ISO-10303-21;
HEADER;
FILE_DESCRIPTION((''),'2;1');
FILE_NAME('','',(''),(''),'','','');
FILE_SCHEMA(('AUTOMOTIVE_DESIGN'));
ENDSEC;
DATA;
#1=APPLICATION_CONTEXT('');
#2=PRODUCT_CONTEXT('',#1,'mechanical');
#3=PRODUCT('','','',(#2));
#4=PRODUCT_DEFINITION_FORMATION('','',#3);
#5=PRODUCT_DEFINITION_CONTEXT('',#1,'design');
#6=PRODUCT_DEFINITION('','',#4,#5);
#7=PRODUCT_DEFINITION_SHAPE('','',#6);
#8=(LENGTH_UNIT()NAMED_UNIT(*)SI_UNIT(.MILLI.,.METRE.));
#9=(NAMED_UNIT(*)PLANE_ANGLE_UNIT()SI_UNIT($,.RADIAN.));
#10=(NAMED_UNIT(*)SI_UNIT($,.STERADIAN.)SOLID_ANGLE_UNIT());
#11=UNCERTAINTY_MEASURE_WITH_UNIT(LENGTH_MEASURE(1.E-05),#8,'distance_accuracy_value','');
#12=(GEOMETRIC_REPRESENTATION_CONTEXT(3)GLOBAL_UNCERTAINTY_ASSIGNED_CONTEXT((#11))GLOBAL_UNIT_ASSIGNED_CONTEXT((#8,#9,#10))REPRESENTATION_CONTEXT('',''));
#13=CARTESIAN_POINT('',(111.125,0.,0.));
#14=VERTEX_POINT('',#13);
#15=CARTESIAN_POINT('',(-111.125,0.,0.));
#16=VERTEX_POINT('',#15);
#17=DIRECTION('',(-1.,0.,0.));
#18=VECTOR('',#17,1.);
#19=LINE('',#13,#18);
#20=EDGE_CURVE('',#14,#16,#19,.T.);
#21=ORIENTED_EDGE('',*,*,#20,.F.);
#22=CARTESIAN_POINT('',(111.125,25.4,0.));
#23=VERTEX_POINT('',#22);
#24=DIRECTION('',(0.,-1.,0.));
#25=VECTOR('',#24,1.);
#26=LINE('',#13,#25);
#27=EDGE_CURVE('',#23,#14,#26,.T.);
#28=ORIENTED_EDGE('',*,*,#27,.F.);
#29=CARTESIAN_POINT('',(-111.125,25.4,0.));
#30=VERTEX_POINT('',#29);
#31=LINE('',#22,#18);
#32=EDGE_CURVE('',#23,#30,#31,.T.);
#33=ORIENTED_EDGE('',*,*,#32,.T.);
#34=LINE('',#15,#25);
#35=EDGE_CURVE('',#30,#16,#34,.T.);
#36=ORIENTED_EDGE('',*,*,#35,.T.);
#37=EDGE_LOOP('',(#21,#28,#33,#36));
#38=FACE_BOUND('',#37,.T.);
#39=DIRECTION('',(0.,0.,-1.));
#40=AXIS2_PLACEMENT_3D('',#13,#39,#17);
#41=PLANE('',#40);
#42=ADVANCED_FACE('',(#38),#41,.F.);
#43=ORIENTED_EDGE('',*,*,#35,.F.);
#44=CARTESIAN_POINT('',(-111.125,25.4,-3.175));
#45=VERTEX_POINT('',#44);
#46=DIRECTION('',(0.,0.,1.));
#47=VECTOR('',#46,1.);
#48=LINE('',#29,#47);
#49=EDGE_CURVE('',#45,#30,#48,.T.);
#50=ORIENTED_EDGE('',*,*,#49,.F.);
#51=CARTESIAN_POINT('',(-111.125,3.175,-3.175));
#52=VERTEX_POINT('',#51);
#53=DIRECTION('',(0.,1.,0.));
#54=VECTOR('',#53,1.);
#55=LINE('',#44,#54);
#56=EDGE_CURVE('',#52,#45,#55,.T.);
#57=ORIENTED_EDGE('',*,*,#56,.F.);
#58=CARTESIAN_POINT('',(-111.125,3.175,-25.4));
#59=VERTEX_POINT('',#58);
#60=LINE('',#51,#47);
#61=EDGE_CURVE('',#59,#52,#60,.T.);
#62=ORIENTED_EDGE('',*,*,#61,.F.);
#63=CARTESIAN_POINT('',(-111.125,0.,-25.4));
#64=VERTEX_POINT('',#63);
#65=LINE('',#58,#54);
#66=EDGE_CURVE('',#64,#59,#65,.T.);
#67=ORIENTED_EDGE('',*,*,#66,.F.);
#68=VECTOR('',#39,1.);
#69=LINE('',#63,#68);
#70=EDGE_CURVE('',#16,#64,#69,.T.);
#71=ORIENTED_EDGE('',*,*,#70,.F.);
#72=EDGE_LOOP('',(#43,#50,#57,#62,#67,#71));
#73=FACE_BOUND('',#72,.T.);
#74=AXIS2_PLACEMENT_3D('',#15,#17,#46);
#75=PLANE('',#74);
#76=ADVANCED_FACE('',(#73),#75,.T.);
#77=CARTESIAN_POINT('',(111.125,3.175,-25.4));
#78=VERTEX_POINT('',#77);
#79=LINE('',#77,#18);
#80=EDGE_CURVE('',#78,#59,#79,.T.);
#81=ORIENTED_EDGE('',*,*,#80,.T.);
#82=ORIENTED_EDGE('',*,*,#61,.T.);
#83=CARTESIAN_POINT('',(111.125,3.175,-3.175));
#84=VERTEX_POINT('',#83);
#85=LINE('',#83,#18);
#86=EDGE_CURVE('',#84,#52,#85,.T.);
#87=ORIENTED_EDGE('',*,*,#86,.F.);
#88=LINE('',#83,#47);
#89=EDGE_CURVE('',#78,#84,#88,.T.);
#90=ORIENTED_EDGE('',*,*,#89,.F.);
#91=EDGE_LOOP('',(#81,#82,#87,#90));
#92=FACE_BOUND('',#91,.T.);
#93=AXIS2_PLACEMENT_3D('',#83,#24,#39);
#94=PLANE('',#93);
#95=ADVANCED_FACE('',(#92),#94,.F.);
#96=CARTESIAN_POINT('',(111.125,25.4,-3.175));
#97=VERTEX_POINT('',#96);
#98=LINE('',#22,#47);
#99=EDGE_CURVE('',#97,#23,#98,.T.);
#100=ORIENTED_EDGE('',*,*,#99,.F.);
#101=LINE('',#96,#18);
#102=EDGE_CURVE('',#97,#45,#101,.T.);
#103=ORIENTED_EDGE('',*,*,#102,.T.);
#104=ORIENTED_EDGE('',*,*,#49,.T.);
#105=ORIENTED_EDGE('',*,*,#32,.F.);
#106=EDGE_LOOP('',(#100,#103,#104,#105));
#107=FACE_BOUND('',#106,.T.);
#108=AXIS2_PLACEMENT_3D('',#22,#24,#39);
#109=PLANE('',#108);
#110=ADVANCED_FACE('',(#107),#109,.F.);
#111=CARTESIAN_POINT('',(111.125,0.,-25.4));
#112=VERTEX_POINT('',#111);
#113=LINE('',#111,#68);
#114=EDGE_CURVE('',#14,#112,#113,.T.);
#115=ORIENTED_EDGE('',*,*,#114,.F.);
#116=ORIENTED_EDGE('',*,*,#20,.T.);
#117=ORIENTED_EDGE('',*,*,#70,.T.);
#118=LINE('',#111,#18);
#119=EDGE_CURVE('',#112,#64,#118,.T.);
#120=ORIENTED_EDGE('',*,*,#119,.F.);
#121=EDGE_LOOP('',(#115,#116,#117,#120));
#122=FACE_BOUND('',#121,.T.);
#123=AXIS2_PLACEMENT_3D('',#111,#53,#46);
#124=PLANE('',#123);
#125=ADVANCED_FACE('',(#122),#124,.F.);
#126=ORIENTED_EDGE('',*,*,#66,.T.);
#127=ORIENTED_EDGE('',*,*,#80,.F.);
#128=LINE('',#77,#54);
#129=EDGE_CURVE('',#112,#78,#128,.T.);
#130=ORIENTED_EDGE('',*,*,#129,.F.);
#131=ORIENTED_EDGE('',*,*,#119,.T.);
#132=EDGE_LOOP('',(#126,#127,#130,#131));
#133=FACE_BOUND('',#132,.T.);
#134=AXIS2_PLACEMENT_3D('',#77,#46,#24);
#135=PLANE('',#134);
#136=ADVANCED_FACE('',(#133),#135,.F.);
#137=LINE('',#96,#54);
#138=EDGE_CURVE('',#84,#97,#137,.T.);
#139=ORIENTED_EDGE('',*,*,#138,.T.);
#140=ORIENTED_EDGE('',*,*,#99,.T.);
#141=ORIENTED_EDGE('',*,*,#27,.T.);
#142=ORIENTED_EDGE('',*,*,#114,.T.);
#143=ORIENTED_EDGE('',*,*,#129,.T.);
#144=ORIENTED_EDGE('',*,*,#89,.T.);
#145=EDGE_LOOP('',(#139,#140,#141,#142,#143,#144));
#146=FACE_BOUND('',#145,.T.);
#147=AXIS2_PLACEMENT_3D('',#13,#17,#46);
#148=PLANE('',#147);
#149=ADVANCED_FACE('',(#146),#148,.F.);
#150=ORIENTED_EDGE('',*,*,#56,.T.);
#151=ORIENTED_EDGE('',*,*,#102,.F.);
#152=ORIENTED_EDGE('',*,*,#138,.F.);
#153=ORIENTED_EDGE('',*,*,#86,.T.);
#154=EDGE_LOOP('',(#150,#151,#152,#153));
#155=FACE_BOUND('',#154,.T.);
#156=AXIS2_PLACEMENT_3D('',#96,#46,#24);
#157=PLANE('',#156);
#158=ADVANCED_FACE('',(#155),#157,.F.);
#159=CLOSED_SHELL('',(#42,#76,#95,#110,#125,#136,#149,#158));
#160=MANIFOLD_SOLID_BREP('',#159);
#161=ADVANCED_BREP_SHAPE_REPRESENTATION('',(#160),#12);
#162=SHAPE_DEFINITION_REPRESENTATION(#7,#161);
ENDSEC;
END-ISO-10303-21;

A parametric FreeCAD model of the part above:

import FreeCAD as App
import Part
import Sketcher
Q = App.Units.Quantity

doc = App.newDocument("Part")
params = doc.addObject("Spreadsheet::Sheet", "Params")
for row, (alias, value) in enumerate([
    ("sketch1_width", "1 in"),
    ("sketch1_width2", "0.125 in"),
    ("pad1_length", "8.75 in"),
], start=1):
    params.set(f"A{row}", alias)
    params.set(f"B{row}", "=" + value)
    params.setAlias(f"B{row}", alias)

body = doc.addObject("PartDesign::Body", "Body")

# Sketch on YZ plane
sketch1 = body.newObject("Sketcher::SketchObject", "Sketch")
sketch1.AttachmentSupport = (doc.getObject("YZ_Plane"), [""])
sketch1.MapMode = "FlatFace"
sketch1.addGeometry([
    Part.LineSegment(App.Vector(25.4, 0, 0), App.Vector(0, 0, 0)),  # 0
    Part.LineSegment(App.Vector(0, 0, 0), App.Vector(0, -25.4, 0)),  # 1
    Part.LineSegment(App.Vector(0, -25.4, 0), App.Vector(3.175, -25.4, 0)),  # 2
    Part.LineSegment(App.Vector(3.175, -25.4, 0), App.Vector(3.175, -3.175, 0)),  # 3
    Part.LineSegment(App.Vector(3.175, -3.175, 0), App.Vector(25.4, -3.175, 0)),  # 4
    Part.LineSegment(App.Vector(25.4, -3.175, 0), App.Vector(25.4, 0, 0)),  # 5
], False)
sketch1.addConstraint([
    Sketcher.Constraint("Coincident", 0, 2, 1, 1),
    Sketcher.Constraint("Coincident", 1, 2, 2, 1),
    Sketcher.Constraint("Coincident", 2, 2, 3, 1),
    Sketcher.Constraint("Coincident", 3, 2, 4, 1),
    Sketcher.Constraint("Coincident", 4, 2, 5, 1),
    Sketcher.Constraint("Coincident", 5, 2, 0, 1),
    Sketcher.Constraint("Horizontal", 0),
    Sketcher.Constraint("Vertical", 1),
    Sketcher.Constraint("Horizontal", 2),
    Sketcher.Constraint("Vertical", 3),
    Sketcher.Constraint("Horizontal", 4),
    Sketcher.Constraint("Vertical", 5),
    Sketcher.Constraint("Coincident", 0, 2, -1, 1),
    Sketcher.Constraint("Equal", 0, 1),
    Sketcher.Constraint("Equal", 4, 3),
    Sketcher.Constraint("DistanceX", 0, 2, 0, 1, Q("1 in")),
    Sketcher.Constraint("DistanceX", 2, 1, 2, 2, Q("0.125 in")),
])
sketch1.setExpression("Constraints[15]", "Params.sketch1_width")
sketch1.setExpression("Constraints[16]", "Params.sketch1_width2")
pad1 = body.newObject("PartDesign::Pad", "Pad")
pad1.Profile = sketch1
pad1.setExpression("Length", "Params.pad1_length")
pad1.Midplane = True

doc.recompute()
